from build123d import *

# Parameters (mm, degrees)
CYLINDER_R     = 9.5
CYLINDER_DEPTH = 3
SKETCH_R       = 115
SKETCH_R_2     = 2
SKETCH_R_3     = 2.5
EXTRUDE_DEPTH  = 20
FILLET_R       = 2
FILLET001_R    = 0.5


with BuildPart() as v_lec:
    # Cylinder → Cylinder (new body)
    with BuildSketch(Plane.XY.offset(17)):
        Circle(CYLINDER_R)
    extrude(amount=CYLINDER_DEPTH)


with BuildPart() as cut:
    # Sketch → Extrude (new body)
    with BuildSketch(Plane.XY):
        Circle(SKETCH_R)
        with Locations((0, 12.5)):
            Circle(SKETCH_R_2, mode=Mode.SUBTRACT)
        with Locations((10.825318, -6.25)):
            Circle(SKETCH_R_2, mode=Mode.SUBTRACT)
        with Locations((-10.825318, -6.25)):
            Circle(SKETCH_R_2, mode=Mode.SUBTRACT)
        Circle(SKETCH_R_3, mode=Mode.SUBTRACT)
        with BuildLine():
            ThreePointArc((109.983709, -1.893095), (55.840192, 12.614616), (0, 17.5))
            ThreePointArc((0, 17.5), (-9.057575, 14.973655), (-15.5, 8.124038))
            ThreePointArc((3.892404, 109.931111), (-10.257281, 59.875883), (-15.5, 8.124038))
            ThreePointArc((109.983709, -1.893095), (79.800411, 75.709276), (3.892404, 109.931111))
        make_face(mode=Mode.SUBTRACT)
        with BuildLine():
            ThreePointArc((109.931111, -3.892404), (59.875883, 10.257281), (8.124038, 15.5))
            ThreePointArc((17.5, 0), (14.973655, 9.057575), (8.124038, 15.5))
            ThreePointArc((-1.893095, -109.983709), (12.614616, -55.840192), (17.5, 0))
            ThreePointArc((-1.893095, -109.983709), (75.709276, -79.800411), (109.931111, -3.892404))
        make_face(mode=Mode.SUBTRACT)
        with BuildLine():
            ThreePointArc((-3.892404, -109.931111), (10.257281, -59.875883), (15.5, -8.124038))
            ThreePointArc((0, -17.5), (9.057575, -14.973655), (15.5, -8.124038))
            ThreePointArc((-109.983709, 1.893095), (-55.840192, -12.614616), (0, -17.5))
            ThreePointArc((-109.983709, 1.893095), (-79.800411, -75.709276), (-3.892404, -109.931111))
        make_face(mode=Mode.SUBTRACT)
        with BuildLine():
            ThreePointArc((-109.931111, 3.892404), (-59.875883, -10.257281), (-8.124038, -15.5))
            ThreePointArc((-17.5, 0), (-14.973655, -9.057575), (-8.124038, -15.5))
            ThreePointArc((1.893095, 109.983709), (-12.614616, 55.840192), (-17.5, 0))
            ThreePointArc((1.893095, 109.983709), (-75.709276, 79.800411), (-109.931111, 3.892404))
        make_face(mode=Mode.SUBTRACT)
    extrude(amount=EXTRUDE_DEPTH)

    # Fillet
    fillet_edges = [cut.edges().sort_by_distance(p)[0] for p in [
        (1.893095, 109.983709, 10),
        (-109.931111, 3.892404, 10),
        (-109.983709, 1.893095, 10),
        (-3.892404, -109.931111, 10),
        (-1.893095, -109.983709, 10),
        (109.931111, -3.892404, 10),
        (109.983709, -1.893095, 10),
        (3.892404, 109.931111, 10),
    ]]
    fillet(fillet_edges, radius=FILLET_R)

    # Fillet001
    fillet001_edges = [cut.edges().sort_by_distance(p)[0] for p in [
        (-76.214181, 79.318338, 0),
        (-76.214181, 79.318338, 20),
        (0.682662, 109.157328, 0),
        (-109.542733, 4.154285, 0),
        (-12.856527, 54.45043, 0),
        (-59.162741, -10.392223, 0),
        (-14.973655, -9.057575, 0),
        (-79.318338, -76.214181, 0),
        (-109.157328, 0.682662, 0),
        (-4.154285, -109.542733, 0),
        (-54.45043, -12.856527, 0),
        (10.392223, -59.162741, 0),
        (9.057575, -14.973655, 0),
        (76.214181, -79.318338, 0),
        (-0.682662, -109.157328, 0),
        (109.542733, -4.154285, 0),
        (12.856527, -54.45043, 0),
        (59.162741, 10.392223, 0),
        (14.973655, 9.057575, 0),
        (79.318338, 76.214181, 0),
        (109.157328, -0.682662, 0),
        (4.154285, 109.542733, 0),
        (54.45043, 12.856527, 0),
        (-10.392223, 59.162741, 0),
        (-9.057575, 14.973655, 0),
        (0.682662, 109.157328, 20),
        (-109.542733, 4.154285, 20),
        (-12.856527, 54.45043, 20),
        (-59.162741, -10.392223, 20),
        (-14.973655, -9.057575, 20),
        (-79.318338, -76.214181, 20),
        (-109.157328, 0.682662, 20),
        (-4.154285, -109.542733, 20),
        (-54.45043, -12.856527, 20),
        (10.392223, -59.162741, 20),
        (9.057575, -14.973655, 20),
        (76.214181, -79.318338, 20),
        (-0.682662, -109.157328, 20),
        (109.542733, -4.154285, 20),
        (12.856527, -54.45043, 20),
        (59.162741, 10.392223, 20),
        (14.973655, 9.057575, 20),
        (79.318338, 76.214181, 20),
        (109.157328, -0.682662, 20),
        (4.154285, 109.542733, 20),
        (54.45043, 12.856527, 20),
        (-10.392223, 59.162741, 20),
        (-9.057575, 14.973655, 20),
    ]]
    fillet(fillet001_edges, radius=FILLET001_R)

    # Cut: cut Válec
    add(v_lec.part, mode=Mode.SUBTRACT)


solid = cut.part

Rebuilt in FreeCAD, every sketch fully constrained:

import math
import FreeCAD as App
import Part
import Sketcher
from FreeCAD import Vector
Q = App.Units.Quantity


def edges_at(feature, points):
    """Names of the edges that pass closest to the given points."""
    edges = feature.Shape.Edges
    near = lambda p: min(range(len(edges)), key=lambda i: edges[i].distToShape(Part.Vertex(*p))[0])
    return sorted({f"Edge{near(p) + 1}" for p in points})

doc = App.newDocument("Part")
params = doc.addObject("Spreadsheet::Sheet", "Params")
for row, (alias, value) in enumerate([
    ("sketch1_diameter", "19 mm"),
    ("pad1_length", "3 mm"),
    ("sketch2_diameter", "230 mm"),
    ("sketch2_diameter2", "4 mm"),
    ("sketch2_diameter3", "5 mm"),
    ("sketch2_radius", "109.999999 mm"),
    ("pad2_length", "20 mm"),
    ("fillet_radius", "2 mm"),
    ("fillet2_radius", "0.5 mm"),
], start=1):
    params.set(f"A{row}", alias)
    params.set(f"B{row}", "=" + value)
    params.setAlias(f"B{row}", alias)

body = doc.addObject("PartDesign::Body", "Body")

sketch1 = body.newObject("Sketcher::SketchObject", "Sketch")
sketch1.AttachmentSupport = (doc.getObject("XY_Plane"), [""])
sketch1.MapMode = "FlatFace"
sketch1.AttachmentOffset = App.Placement(Vector(0, 0, 17), App.Rotation())
sketch1.addGeometry(Part.Circle(Vector(0, 0, 0), Vector(0, 0, 1), 10), False)
sketch1.addConstraint([
    Sketcher.Constraint("Coincident", 0, 3, -1, 1),
    Sketcher.Constraint("Diameter", 0, Q("19 mm")),
])
sketch1.setExpression("Constraints[1]", "Params.sketch1_diameter")
pad1 = body.newObject("PartDesign::Pad", "Pad")
pad1.Profile = sketch1
pad1.setExpression("Length", "Params.pad1_length")
body2 = doc.addObject("PartDesign::Body", "Body001")

sketch2 = body2.newObject("Sketcher::SketchObject", "Sketch001")
sketch2.AttachmentSupport = (doc.getObject("XY_Plane001"), [""])
sketch2.MapMode = "FlatFace"
sketch2.addGeometry([
    Part.Circle(Vector(0, 0, 0), Vector(0, 0, 1), 115),
    Part.ArcOfCircle(Part.Circle(Vector(-282.9, -4, 0), Vector(0, 0, 1), 298.4), math.radians(-21), math.radians(-1)),
    Part.ArcOfCircle(Part.Circle(Vector(0, 0, 0), Vector(0, 0, 1), 110), math.radians(179), math.radians(268)),
    Part.ArcOfCircle(Part.Circle(Vector(0, 304.1, 0), Vector(0, 0, 1), 321.6), math.radians(-110), math.radians(-90)),
    Part.ArcOfCircle(Part.Circle(Vector(0, 0, 0), Vector(0, 0, 1), 17.5), math.radians(-90), math.radians(-28)),
    Part.Circle(Vector(-10.8, -6.2, 0), Vector(0, 0, 1), 2),
    Part.ArcOfCircle(Part.Circle(Vector(4, -282.9, 0), Vector(0, 0, 1), 298.4), math.radians(69), math.radians(89)),
    Part.ArcOfCircle(Part.Circle(Vector(0, 0, 0), Vector(0, 0, 1), 110), math.radians(-91), math.radians(-2)),
    Part.ArcOfCircle(Part.Circle(Vector(-304.1, 0, 0), Vector(0, 0, 1), 321.6), math.radians(-20), math.radians(0)),
    Part.ArcOfCircle(Part.Circle(Vector(0, 0, 0), Vector(0, 0, 1), 17.5), math.radians(0), math.radians(62)),
    Part.Circle(Vector(10.8, -6.2, 0), Vector(0, 0, 1), 2),
    Part.ArcOfCircle(Part.Circle(Vector(-4, 282.9, 0), Vector(0, 0, 1), 298.4), math.radians(-111), math.radians(-91)),
    Part.ArcOfCircle(Part.Circle(Vector(0, 0, 0), Vector(0, 0, 1), 110), math.radians(89), math.radians(178)),
    Part.ArcOfCircle(Part.Circle(Vector(304.1, 0, 0), Vector(0, 0, 1), 321.6), math.radians(160), math.radians(180)),
    Part.ArcOfCircle(Part.Circle(Vector(0, 0, 0), Vector(0, 0, 1), 17.5), math.radians(180), math.radians(242)),
    Part.Circle(Vector(0, 0, 0), Vector(0, 0, 1), 2.5),
    Part.Circle(Vector(0, 12.5, 0), Vector(0, 0, 1), 2),
    Part.ArcOfCircle(Part.Circle(Vector(0, 0, 0), Vector(0, 0, 1), 110), math.radians(-1), math.radians(88)),
    Part.ArcOfCircle(Part.Circle(Vector(0, -304.1, 0), Vector(0, 0, 1), 321.6), math.radians(70), math.radians(90)),
    Part.ArcOfCircle(Part.Circle(Vector(0, 0, 0), Vector(0, 0, 1), 17.5), math.radians(90), math.radians(152)),
    Part.ArcOfCircle(Part.Circle(Vector(282.9, 4, 0), Vector(0, 0, 1), 298.4), math.radians(159), math.radians(179)),
], False)
sketch2.addConstraint([
    Sketcher.Constraint("Coincident", 1, 1, 2, 2),
    Sketcher.Constraint("Coincident", 2, 1, 3, 1),
    Sketcher.Constraint("Tangent", 3, 2, 4, 1),
    Sketcher.Constraint("Coincident", 4, 2, 1, 2),
    Sketcher.Constraint("Coincident", 6, 1, 7, 2),
    Sketcher.Constraint("Coincident", 7, 1, 8, 1),
    Sketcher.Constraint("Tangent", 8, 2, 9, 1),
    Sketcher.Constraint("Coincident", 9, 2, 6, 2),
    Sketcher.Constraint("Coincident", 11, 1, 12, 2),
    Sketcher.Constraint("Coincident", 12, 1, 13, 1),
    Sketcher.Constraint("Tangent", 13, 2, 14, 1),
    Sketcher.Constraint("Coincident", 14, 2, 11, 2),
    Sketcher.Constraint("Coincident", 17, 1, 18, 1),
    Sketcher.Constraint("Tangent", 18, 2, 19, 1),
    Sketcher.Constraint("Coincident", 19, 2, 20, 2),
    Sketcher.Constraint("Coincident", 20, 1, 17, 2),
    Sketcher.Constraint("Coincident", 0, 3, -1, 1),
    Sketcher.Constraint("Coincident", 2, 3, -1, 1),
    Sketcher.Constraint("Coincident", 4, 3, -1, 1),
    Sketcher.Constraint("Coincident", 7, 3, -1, 1),
    Sketcher.Constraint("Coincident", 9, 3, -1, 1),
    Sketcher.Constraint("Coincident", 12, 3, -1, 1),
    Sketcher.Constraint("Coincident", 14, 3, -1, 1),
    Sketcher.Constraint("Coincident", 15, 3, -1, 1),
    Sketcher.Constraint("Coincident", 17, 3, -1, 1),
    Sketcher.Constraint("Coincident", 19, 3, -1, 1),
    Sketcher.Constraint("Equal", 1, 6),
    Sketcher.Constraint("Equal", 2, 7),
    Sketcher.Constraint("Equal", 3, 8),
    Sketcher.Constraint("Equal", 4, 9),
    Sketcher.Constraint("Equal", 5, 10),
    Sketcher.Constraint("Equal", 6, 11),
    Sketcher.Constraint("Equal", 7, 12),
    Sketcher.Constraint("Equal", 8, 13),
    Sketcher.Constraint("Equal", 9, 14),
    Sketcher.Constraint("Equal", 10, 16),
    Sketcher.Constraint("Equal", 12, 17),
    Sketcher.Constraint("Equal", 13, 18),
    Sketcher.Constraint("Equal", 14, 19),
    Sketcher.Constraint("Equal", 11, 20),
    Sketcher.Constraint("Symmetric", 6, 3, 11, 3, -1, 1),
    Sketcher.Constraint("Symmetric", 1, 3, 20, 3, -1, 1),
    Sketcher.Constraint("Symmetric", 5, 3, 10, 3, -2),
    Sketcher.Constraint("PointOnObject", 16, 3, -2),
    Sketcher.Constraint("Horizontal", 4, 3, 13, 3),
    Sketcher.Constraint("Horizontal", 8, 3, 19, 3),
    Sketcher.Constraint("Vertical", 3, 3, 9, 3),
    Sketcher.Constraint("Vertical", 14, 3, 18, 3),
    Sketcher.Constraint("Diameter", 0, Q("230 mm")),
    Sketcher.Constraint("Diameter", 5, Q("4 mm")),
    Sketcher.Constraint("Diameter", 15, Q("5 mm")),
    Sketcher.Constraint("Radius", 2, Q("109.999999 mm")),
    Sketcher.Constraint("DistanceX", 4, 2, 8, 2, Q("2 mm")),
    Sketcher.Constraint("DistanceY", 16, 3, 9, 2, Q("3 mm")),
    Sketcher.Constraint("DistanceY", 3, 2, 14, 2, Q("2 mm")),
    Sketcher.Constraint("DistanceY", -1, 1, 16, 3, Q("12.5 mm")),
    Sketcher.Constraint("DistanceY", 5, 3, -1, 1, Q("6.25 mm")),
    Sketcher.Constraint("Radius", 3, Q("321.57088 mm")),
    Sketcher.Constraint("Radius", 1, Q("298.412434 mm")),
    Sketcher.Constraint("DistanceX", 1, 1, 14, 3, Q("3.892402 mm")),
    Sketcher.Constraint("DistanceY", 6, 1, 4, 3, Q("3.892402 mm")),
    Sketcher.Constraint("DistanceX", 5, 3, 4, 3, Q("10.825319 mm")),
])
sketch2.setExpression("Constraints[48]", "Params.sketch2_diameter")
sketch2.setExpression("Constraints[49]", "Params.sketch2_diameter2")
sketch2.setExpression("Constraints[50]", "Params.sketch2_diameter3")
sketch2.setExpression("Constraints[51]", "Params.sketch2_radius")
pad2 = body2.newObject("PartDesign::Pad", "Pad001")
pad2.Profile = sketch2
pad2.setExpression("Length", "Params.pad2_length")
doc.recompute()

fillet = body2.newObject("PartDesign::Fillet", "Fillet")
fillet.Base = (pad2, edges_at(pad2, [
    (1.893, 109.984, 10),
    (-109.931, 3.892, 10),
    (-109.984, 1.893, 10),
    (-3.892, -109.931, 10),
    (-1.893, -109.984, 10),
    (109.931, -3.892, 10),
    (109.984, -1.893, 10),
    (3.892, 109.931, 10),
]))
fillet.setExpression("Radius", "Params.fillet_radius")
doc.recompute()

fillet2 = body2.newObject("PartDesign::Fillet", "Fillet001")
fillet2.Base = (fillet, edges_at(fillet, [
    (-76.214, 79.318, 0),
    (-76.214, 79.318, 20),
    (0.683, 109.157, 0),
    (-109.543, 4.154, 0),
    (-12.857, 54.45, 0),
    (-59.163, -10.392, 0),
    (-14.974, -9.058, 0),
    (-79.318, -76.214, 0),
    (-109.157, 0.683, 0),
    (-4.154, -109.543, 0),
    (-54.45, -12.857, 0),
    (10.392, -59.163, 0),
    (9.058, -14.974, 0),
    (76.214, -79.318, 0),
    (-0.683, -109.157, 0),
    (109.543, -4.154, 0),
    (12.857, -54.45, 0),
    (59.163, 10.392, 0),
    (14.974, 9.058, 0),
    (79.318, 76.214, 0),
    (109.157, -0.683, 0),
    (4.154, 109.543, 0),
    (54.45, 12.857, 0),
    (-10.392, 59.163, 0),
    (-9.058, 14.974, 0),
    (0.683, 109.157, 20),
    (-109.543, 4.154, 20),
    (-12.857, 54.45, 20),
    (-59.163, -10.392, 20),
    (-14.974, -9.058, 20),
    (-79.318, -76.214, 20),
    (-109.157, 0.683, 20),
    (-4.154, -109.543, 20),
    (-54.45, -12.857, 20),
    (10.392, -59.163, 20),
    (9.058, -14.974, 20),
    (76.214, -79.318, 20),
    (-0.683, -109.157, 20),
    (109.543, -4.154, 20),
    (12.857, -54.45, 20),
    (59.163, 10.392, 20),
    (14.974, 9.058, 20),
    (79.318, 76.214, 20),
    (109.157, -0.683, 20),
    (4.154, 109.543, 20),
    (54.45, 12.857, 20),
    (-10.392, 59.163, 20),
    (-9.058, 14.974, 20),
]))
fillet2.setExpression("Radius", "Params.fillet2_radius")
doc.recompute()

boolean = body2.newObject("PartDesign::Boolean", "Boolean")
boolean.Type = "Cut"
boolean.addObjects([body])

doc.recompute()
